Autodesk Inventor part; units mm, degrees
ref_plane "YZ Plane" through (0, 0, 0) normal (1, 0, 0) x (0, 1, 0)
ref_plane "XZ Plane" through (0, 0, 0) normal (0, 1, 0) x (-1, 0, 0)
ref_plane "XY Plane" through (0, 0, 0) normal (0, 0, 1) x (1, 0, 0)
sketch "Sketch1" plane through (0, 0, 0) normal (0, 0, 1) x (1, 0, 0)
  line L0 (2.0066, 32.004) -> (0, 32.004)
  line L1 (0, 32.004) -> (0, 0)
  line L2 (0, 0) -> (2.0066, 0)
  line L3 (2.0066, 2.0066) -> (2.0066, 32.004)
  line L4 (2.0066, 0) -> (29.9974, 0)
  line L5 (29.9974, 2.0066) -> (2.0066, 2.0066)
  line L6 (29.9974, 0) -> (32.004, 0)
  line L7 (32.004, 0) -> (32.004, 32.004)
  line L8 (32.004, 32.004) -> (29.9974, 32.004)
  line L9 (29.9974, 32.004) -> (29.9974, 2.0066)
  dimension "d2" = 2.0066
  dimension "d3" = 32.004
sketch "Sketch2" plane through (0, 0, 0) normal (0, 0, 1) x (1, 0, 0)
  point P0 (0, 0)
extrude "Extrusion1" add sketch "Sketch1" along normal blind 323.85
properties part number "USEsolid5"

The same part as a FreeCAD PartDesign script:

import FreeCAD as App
import Part
import Sketcher

V = App.Vector
Q = App.Units.Quantity


def add_polygon(sketch, points):
    """Adds a closed chain of lines whose ends are joined by coincident constraints."""
    first, n = sketch.GeometryCount, len(points)
    for a, b in zip(points, points[1:] + points[:1]):
        sketch.addGeometry(Part.LineSegment(App.Vector(*a, 0), App.Vector(*b, 0)), False)
    for i in range(n):
        sketch.addConstraint(Sketcher.Constraint("Coincident", first + i, 2, first + (i + 1) % n, 1))

doc = App.newDocument("Part")
body = doc.addObject("PartDesign::Body", "Body")

sketch1 = body.newObject("Sketcher::SketchObject", "Sketch")
sketch1.AttachmentSupport = (doc.getObject("XY_Plane"), [""])
sketch1.MapMode = "FlatFace"
add_polygon(sketch1, [(2.0066, 2.0066), (2.0066, 32.004), (0, 32.004), (0, 0), (32.004, 0), (32.004, 32.004), (29.9974, 32.004), (29.9974, 2.0066)])
sketch1.addConstraint(Sketcher.Constraint("Vertical", 0))
sketch1.addConstraint(Sketcher.Constraint("Horizontal", 1))
sketch1.addConstraint(Sketcher.Constraint("Vertical", 2))
sketch1.addConstraint(Sketcher.Constraint("Horizontal", 3))
sketch1.addConstraint(Sketcher.Constraint("Vertical", 4))
sketch1.addConstraint(Sketcher.Constraint("Horizontal", 5))
sketch1.addConstraint(Sketcher.Constraint("Vertical", 6))
sketch1.addConstraint(Sketcher.Constraint("Horizontal", 7))
sketch1.addConstraint(Sketcher.Constraint("Coincident", 2, 2, -1, 1))
sketch1.addConstraint(Sketcher.Constraint("Horizontal", 1, 2, 4, 2))
sketch1.addConstraint(Sketcher.Constraint("Equal", 1, 5))
sketch1.addConstraint(Sketcher.Constraint("Equal", 3, 2))
sketch1.addConstraint(Sketcher.Constraint("DistanceX", 3, 1, 3, 2, Q("1.26 in")))
sketch1.addConstraint(Sketcher.Constraint("DistanceX", 1, 2, 1, 1, Q("0.079 in")))
sketch1.addConstraint(Sketcher.Constraint("DistanceY", -1, 1, 6, 2, Q("0.079 in")))
pad1 = body.newObject("PartDesign::Pad", "Pad")
pad1.Profile = sketch1
pad1.Length = Q("12.75 in")

doc.recompute()
